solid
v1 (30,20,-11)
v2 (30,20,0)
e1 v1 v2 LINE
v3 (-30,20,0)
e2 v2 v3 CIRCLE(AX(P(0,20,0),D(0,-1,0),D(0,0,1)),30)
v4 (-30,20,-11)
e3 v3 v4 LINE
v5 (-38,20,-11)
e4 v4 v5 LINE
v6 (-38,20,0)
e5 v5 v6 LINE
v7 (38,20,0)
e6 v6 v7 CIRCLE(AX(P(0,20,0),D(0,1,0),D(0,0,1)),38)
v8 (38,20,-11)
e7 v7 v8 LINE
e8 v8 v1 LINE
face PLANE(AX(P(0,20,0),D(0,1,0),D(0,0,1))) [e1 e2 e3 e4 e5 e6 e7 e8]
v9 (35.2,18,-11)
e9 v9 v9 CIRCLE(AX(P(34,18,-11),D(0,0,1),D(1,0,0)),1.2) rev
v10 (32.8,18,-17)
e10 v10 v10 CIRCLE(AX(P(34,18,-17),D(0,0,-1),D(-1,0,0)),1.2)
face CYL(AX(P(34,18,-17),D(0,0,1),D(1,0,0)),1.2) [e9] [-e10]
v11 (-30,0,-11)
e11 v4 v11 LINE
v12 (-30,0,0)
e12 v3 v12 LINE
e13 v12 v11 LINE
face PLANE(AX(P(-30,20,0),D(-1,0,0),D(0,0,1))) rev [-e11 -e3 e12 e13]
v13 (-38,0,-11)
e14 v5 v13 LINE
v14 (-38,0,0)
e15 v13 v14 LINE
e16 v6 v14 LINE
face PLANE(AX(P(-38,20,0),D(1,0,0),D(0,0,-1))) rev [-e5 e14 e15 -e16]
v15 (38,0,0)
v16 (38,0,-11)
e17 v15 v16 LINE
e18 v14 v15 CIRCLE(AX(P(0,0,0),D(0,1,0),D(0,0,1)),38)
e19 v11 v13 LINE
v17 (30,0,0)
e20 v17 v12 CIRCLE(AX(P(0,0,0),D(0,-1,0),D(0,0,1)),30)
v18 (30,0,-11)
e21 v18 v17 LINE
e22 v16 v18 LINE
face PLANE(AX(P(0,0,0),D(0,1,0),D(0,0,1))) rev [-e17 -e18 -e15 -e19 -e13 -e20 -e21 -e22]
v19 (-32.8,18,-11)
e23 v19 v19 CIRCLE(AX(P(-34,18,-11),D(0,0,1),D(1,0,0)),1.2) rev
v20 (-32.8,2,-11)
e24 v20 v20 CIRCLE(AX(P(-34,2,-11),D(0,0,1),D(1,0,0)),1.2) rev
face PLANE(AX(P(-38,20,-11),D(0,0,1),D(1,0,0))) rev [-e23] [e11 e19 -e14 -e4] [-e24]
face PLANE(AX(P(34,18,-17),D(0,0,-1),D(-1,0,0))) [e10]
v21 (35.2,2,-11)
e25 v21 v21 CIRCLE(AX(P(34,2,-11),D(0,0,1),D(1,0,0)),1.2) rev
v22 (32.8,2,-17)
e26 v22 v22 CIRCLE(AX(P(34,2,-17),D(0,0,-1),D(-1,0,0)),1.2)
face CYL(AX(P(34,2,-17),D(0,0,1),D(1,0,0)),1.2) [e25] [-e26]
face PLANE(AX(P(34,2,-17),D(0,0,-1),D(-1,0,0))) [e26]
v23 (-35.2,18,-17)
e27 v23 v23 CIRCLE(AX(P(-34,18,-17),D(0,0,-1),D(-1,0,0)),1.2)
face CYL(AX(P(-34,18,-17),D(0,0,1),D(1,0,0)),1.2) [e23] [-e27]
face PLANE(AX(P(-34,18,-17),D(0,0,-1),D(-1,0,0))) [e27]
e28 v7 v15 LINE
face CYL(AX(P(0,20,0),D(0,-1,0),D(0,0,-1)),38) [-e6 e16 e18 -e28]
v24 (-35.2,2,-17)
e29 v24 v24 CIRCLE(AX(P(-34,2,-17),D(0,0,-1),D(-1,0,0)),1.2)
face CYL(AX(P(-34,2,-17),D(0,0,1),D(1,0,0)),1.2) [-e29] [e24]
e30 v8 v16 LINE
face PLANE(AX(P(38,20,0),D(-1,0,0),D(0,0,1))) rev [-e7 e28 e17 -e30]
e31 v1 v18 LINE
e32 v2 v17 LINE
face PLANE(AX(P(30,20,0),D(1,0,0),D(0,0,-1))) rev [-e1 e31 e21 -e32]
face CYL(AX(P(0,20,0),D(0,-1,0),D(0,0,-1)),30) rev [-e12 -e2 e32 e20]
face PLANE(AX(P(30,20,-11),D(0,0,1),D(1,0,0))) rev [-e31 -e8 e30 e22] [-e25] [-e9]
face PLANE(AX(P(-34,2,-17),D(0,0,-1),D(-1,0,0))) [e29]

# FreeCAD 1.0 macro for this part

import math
import FreeCAD as App
import Part
import Sketcher
Q = App.Units.Quantity

doc = App.newDocument("Part")
body = doc.addObject("PartDesign::Body", "Body")

sketch1 = body.newObject("Sketcher::SketchObject", "Sketch")
sketch1.AttachmentSupport = (doc.getObject("XZ_Plane"), [""])
sketch1.MapMode = "FlatFace"
sketch1.addGeometry([
    Part.LineSegment(App.Vector(-30, 0, 0), App.Vector(-30, -11, 0)),
    Part.LineSegment(App.Vector(-30, -11, 0), App.Vector(-38, -11, 0)),
    Part.LineSegment(App.Vector(-38, -11, 0), App.Vector(-38, 0, 0)),
    Part.ArcOfCircle(Part.Circle(App.Vector(0, 0, 0), App.Vector(0, 0, 1), 38), math.radians(0), math.radians(180)),
    Part.LineSegment(App.Vector(38, 0, 0), App.Vector(38, -11, 0)),
    Part.LineSegment(App.Vector(38, -11, 0), App.Vector(30, -11, 0)),
    Part.LineSegment(App.Vector(30, -11, 0), App.Vector(30, 0, 0)),
    Part.ArcOfCircle(Part.Circle(App.Vector(0, 0, 0), App.Vector(0, 0, 1), 30), math.radians(0), math.radians(180)),
], False)
sketch1.addConstraint([
    Sketcher.Constraint("Coincident", 0, 2, 1, 1),
    Sketcher.Constraint("Coincident", 1, 2, 2, 1),
    Sketcher.Constraint("Tangent", 2, 2, 3, 2),
    Sketcher.Constraint("Tangent", 3, 1, 4, 1),
    Sketcher.Constraint("Coincident", 4, 2, 5, 1),
    Sketcher.Constraint("Coincident", 5, 2, 6, 1),
    Sketcher.Constraint("Tangent", 6, 2, 7, 1),
    Sketcher.Constraint("Tangent", 7, 2, 0, 1),
    Sketcher.Constraint("Vertical", 0),
    Sketcher.Constraint("Horizontal", 1),
    Sketcher.Constraint("Vertical", 2),
    Sketcher.Constraint("Vertical", 4),
    Sketcher.Constraint("Horizontal", 5),
    Sketcher.Constraint("Vertical", 6),
    Sketcher.Constraint("Coincident", 3, 3, -1, 1),
    Sketcher.Constraint("Coincident", 7, 3, -1, 1),
    Sketcher.Constraint("Horizontal", 1, 2, 4, 2),
    Sketcher.Constraint("Radius", 3, Q("38 mm")),
    Sketcher.Constraint("Radius", 7, Q("30 mm")),
    Sketcher.Constraint("DistanceY", 0, 2, 0, 1, Q("11 mm")),
])
pad1 = body.newObject("PartDesign::Pad", "Pad")
pad1.Profile = sketch1
pad1.Length = 20
pad1.Reversed = True

sketch2 = body.newObject("Sketcher::SketchObject", "Sketch001")
sketch2.AttachmentSupport = (doc.getObject("XY_Plane"), [""])
sketch2.MapMode = "FlatFace"
sketch2.AttachmentOffset = App.Placement(App.Vector(0, 0, -11), App.Rotation())
sketch2.addGeometry([
    Part.Circle(App.Vector(34, 18, 0), App.Vector(0, 0, 1), 1.2),
    Part.Circle(App.Vector(34, 2, 0), App.Vector(0, 0, 1), 1.2),
    Part.Circle(App.Vector(-34, 18, 0), App.Vector(0, 0, 1), 1.2),
    Part.Circle(App.Vector(-34, 2, 0), App.Vector(0, 0, 1), 1.2),
], False)
sketch2.addConstraint([
    Sketcher.Constraint("Equal", 0, 1),
    Sketcher.Constraint("Equal", 1, 2),
    Sketcher.Constraint("Equal", 2, 3),
    Sketcher.Constraint("Symmetric", 0, 3, 2, 3, -2),
    Sketcher.Constraint("Symmetric", 1, 3, 3, 3, -2),
    Sketcher.Constraint("Vertical", 0, 3, 1, 3),
    Sketcher.Constraint("Diameter", 0, Q("2.4 mm")),
    Sketcher.Constraint("DistanceX", -1, 1, 0, 3, Q("34 mm")),
    Sketcher.Constraint("DistanceY", -1, 1, 0, 3, Q("18 mm")),
    Sketcher.Constraint("DistanceY", -1, 1, 1, 3, Q("2 mm")),
])
pad2 = body.newObject("PartDesign::Pad", "Pad001")
pad2.Profile = sketch2
pad2.Length = 6
pad2.Reversed = True

doc.recompute()
